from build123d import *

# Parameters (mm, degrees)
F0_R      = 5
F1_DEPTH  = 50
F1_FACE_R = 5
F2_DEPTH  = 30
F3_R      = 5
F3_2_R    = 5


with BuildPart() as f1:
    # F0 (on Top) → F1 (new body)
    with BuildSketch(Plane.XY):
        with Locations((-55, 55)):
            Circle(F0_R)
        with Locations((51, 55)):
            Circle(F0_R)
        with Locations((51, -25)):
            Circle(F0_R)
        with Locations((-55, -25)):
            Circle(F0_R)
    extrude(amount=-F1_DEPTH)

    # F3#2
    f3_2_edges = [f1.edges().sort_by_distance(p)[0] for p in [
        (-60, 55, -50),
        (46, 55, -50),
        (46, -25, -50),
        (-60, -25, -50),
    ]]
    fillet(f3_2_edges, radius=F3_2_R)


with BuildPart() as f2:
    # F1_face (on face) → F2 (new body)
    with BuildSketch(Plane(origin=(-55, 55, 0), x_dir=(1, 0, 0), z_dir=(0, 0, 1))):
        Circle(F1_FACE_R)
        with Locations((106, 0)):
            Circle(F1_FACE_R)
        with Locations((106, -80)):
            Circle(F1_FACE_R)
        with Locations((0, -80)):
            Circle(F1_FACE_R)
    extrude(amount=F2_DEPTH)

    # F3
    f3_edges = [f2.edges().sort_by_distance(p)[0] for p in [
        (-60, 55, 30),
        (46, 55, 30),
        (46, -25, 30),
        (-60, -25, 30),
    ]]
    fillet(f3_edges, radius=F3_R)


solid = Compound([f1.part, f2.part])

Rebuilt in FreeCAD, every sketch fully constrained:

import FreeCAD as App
import Part
import Sketcher


def edges_at(feature, points):
    """Names of the edges that pass closest to the given points."""
    edges = feature.Shape.Edges
    near = lambda p: min(range(len(edges)), key=lambda i: edges[i].distToShape(Part.Vertex(*p))[0])
    return sorted({f"Edge{near(p) + 1}" for p in points})

doc = App.newDocument("Part")
body = doc.addObject("PartDesign::Body", "Body")
body.AllowCompound = True

sketch1 = body.newObject("Sketcher::SketchObject", "Sketch")
sketch1.AttachmentSupport = (doc.getObject("XY_Plane"), [""])
sketch1.MapMode = "FlatFace"
sketch1.addGeometry([
    Part.Circle(App.Vector(-55, 55, 0), App.Vector(0, 0, 1), 5),
    Part.Circle(App.Vector(51, 55, 0), App.Vector(0, 0, 1), 5),
    Part.Circle(App.Vector(51, -25, 0), App.Vector(0, 0, 1), 5),
    Part.Circle(App.Vector(-55, -25, 0), App.Vector(0, 0, 1), 5),
], False)
sketch1.addConstraint([
    Sketcher.Constraint("Equal", 0, 1),
    Sketcher.Constraint("Equal", 1, 2),
    Sketcher.Constraint("Equal", 2, 3),
    Sketcher.Constraint("Horizontal", 0, 3, 1, 3),
    Sketcher.Constraint("Horizontal", 2, 3, 3, 3),
    Sketcher.Constraint("Vertical", 1, 3, 2, 3),
    Sketcher.Constraint("Vertical", 0, 3, 3, 3),
    Sketcher.Constraint("Diameter", 0, 10.0),
    Sketcher.Constraint("DistanceX", 0, 3, -1, 1, 55.0),
    Sketcher.Constraint("DistanceY", -1, 1, 0, 3, 55.0),
    Sketcher.Constraint("DistanceX", -1, 1, 1, 3, 51.0),
    Sketcher.Constraint("DistanceY", 2, 3, -1, 1, 25.0),
])
pad1 = body.newObject("PartDesign::Pad", "Pad")
pad1.Profile = sketch1
pad1.Length = 50
pad1.Reversed = True
doc.recompute()

fillet = body.newObject("PartDesign::Fillet", "Fillet")
fillet.Base = (pad1, edges_at(pad1, [
    (-60, 55, -50),
    (46, 55, -50),
    (46, -25, -50),
    (-60, -25, -50),
]))
fillet.Radius = 5
body2 = doc.addObject("PartDesign::Body", "Body001")
body2.AllowCompound = True

sketch2 = body2.newObject("Sketcher::SketchObject", "Sketch001")
sketch2.AttachmentSupport = (doc.getObject("XY_Plane001"), [""])
sketch2.MapMode = "FlatFace"
sketch2.addGeometry([
    Part.Circle(App.Vector(-55, 55, 0), App.Vector(0, 0, 1), 5),
    Part.Circle(App.Vector(51, 55, 0), App.Vector(0, 0, 1), 5),
    Part.Circle(App.Vector(51, -25, 0), App.Vector(0, 0, 1), 5),
    Part.Circle(App.Vector(-55, -25, 0), App.Vector(0, 0, 1), 5),
], False)
sketch2.addConstraint([
    Sketcher.Constraint("Equal", 0, 1),
    Sketcher.Constraint("Equal", 1, 2),
    Sketcher.Constraint("Equal", 2, 3),
    Sketcher.Constraint("Horizontal", 0, 3, 1, 3),
    Sketcher.Constraint("Horizontal", 2, 3, 3, 3),
    Sketcher.Constraint("Vertical", 1, 3, 2, 3),
    Sketcher.Constraint("Vertical", 0, 3, 3, 3),
    Sketcher.Constraint("Diameter", 0, 10.0),
    Sketcher.Constraint("DistanceX", 0, 3, -1, 1, 55.0),
    Sketcher.Constraint("DistanceY", -1, 1, 0, 3, 55.0),
    Sketcher.Constraint("DistanceX", -1, 1, 1, 3, 51.0),
    Sketcher.Constraint("DistanceY", 2, 3, -1, 1, 25.0),
])
pad2 = body2.newObject("PartDesign::Pad", "Pad001")
pad2.Profile = sketch2
pad2.Length = 30
doc.recompute()

fillet2 = body2.newObject("PartDesign::Fillet", "Fillet001")
fillet2.Base = (pad2, edges_at(pad2, [
    (-60, 55, 30),
    (46, 55, 30),
    (46, -25, 30),
    (-60, -25, 30),
]))
fillet2.Radius = 5

doc.recompute()
